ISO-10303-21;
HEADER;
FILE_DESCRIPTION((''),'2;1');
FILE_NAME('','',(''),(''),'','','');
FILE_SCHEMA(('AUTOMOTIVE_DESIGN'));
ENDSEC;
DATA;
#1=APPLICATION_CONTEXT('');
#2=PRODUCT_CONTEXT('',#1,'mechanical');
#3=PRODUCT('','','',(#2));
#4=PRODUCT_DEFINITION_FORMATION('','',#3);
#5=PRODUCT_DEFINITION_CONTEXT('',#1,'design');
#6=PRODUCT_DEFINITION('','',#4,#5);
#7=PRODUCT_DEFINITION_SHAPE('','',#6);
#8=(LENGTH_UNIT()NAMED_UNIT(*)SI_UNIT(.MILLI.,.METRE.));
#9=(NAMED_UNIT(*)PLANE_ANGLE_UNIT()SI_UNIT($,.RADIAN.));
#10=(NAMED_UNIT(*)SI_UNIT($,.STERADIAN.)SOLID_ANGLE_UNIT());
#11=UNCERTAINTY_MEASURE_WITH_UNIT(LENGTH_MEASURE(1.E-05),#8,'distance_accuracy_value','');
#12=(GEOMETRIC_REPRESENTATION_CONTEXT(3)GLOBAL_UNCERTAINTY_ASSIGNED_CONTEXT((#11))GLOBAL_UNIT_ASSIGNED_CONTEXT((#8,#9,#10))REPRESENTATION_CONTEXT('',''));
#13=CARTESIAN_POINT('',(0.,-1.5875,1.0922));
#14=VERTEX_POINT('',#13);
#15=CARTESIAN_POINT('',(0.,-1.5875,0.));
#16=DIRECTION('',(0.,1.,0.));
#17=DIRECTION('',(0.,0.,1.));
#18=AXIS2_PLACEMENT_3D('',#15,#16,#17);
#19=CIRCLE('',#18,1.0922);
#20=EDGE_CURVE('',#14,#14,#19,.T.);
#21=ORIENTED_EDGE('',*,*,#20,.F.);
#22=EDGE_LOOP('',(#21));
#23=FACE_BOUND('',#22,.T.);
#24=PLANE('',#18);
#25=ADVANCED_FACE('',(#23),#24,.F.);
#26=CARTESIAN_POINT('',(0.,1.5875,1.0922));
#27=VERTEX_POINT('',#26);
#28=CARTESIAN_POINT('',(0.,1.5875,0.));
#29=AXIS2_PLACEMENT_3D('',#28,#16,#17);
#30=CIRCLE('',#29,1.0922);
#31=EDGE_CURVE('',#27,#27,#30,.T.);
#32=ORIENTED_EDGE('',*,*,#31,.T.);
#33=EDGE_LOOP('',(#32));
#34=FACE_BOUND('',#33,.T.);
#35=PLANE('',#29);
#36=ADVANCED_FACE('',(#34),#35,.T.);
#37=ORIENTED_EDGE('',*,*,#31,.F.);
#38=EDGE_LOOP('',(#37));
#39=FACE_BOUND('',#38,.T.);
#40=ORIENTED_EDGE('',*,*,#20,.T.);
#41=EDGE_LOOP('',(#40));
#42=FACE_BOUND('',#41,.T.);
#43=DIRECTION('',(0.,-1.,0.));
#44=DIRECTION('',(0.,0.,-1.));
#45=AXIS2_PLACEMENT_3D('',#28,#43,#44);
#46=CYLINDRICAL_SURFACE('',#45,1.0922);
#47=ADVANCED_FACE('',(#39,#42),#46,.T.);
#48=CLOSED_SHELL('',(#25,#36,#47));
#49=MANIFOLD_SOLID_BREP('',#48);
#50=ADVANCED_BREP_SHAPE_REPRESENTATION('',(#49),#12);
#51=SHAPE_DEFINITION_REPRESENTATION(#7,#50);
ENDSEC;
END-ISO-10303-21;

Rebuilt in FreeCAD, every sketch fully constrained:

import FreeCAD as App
import Part
import Sketcher
from FreeCAD import Vector
Q = App.Units.Quantity

doc = App.newDocument("Part")
body = doc.addObject("PartDesign::Body", "Body")

sketch1 = body.newObject("Sketcher::SketchObject", "Sketch")
sketch1.AttachmentSupport = (doc.getObject("XZ_Plane"), [""])
sketch1.MapMode = "FlatFace"
sketch1.addGeometry(Part.Circle(Vector(0, 0, 0), Vector(0, 0, 1), 1.0922), False)
sketch1.addConstraint([
    Sketcher.Constraint("Coincident", 0, 3, -1, 1),
    Sketcher.Constraint("Diameter", 0, Q("0.086 in")),
])
pad1 = body.newObject("PartDesign::Pad", "Pad")
pad1.Profile = sketch1
pad1.Length = Q("0.125 in")
pad1.Midplane = True

doc.recompute()
